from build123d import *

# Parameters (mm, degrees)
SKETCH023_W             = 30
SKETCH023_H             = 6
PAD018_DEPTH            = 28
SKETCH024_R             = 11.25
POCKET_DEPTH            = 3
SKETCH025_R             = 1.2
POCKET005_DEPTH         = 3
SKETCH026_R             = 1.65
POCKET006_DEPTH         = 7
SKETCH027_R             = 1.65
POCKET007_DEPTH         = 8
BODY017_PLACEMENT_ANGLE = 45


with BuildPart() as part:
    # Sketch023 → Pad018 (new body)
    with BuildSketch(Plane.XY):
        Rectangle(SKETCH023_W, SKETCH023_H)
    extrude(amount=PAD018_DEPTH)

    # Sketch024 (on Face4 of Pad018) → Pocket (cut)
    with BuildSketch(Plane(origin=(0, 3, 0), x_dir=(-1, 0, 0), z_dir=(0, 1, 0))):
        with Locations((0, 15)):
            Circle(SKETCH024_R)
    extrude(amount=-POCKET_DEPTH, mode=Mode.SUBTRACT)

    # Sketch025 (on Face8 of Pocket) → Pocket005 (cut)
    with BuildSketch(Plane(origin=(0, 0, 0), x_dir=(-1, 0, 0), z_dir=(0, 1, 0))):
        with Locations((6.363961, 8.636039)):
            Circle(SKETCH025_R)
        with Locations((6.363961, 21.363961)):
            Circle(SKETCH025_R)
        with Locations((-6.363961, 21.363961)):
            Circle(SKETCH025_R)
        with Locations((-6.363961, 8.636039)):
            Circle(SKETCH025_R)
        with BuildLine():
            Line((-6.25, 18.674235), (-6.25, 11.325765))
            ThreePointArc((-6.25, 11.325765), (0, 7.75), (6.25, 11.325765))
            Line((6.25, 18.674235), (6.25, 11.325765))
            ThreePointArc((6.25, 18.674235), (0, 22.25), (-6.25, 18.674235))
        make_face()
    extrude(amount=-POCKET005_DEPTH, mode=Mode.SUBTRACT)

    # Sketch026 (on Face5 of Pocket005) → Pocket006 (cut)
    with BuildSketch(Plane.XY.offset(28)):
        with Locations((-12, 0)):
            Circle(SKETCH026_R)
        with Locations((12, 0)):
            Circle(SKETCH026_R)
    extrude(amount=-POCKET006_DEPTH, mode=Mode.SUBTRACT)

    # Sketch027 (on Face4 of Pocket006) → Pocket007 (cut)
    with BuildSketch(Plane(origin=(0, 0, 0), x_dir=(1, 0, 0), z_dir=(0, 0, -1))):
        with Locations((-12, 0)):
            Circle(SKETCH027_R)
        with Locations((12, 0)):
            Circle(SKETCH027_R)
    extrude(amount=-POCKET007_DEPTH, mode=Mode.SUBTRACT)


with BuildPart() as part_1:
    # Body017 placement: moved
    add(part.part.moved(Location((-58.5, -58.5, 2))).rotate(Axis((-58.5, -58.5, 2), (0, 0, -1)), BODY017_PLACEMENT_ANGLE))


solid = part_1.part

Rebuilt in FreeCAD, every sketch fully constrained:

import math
import FreeCAD as App
import Part
import Sketcher

doc = App.newDocument("Part")
params = doc.addObject("Spreadsheet::Sheet", "Params")
for row, (alias, value) in enumerate([
    ("sketch1_width", "30 mm"),
    ("sketch1_height", "6 mm"),
    ("pad1_length", "28 mm"),
    ("sketch2_diameter", "22.5 mm"),
    ("pocket1_length", "3 mm"),
    ("sketch3_diameter", "2.4 mm"),
    ("sketch3_radius", "7.25 mm"),
    ("pocket2_length", "3 mm"),
    ("sketch4_diameter", "3.3 mm"),
    ("pocket3_length", "7 mm"),
    ("sketch5_diameter", "3.3 mm"),
    ("pocket4_length", "8 mm"),
], start=1):
    params.set(f"A{row}", alias)
    params.set(f"B{row}", "=" + value)
    params.setAlias(f"B{row}", alias)

body = doc.addObject("PartDesign::Body", "Body")

sketch1 = doc.addObject("Sketcher::SketchObject", "Sketch")
body.addObject(sketch1)
sketch1.AttachmentSupport = (doc.XY_Plane, [""])
sketch1.MapMode = "FlatFace"
sketch1.addGeometry(Part.LineSegment(App.Vector(-15, 3, 0), App.Vector(-15, -3, 0)), False)
sketch1.addGeometry(Part.LineSegment(App.Vector(-15, -3, 0), App.Vector(15, -3, 0)), False)
sketch1.addGeometry(Part.LineSegment(App.Vector(15, -3, 0), App.Vector(15, 3, 0)), False)
sketch1.addGeometry(Part.LineSegment(App.Vector(15, 3, 0), App.Vector(-15, 3, 0)), False)
sketch1.addConstraint(Sketcher.Constraint("Coincident", 0, 2, 1, 1))
sketch1.addConstraint(Sketcher.Constraint("Coincident", 1, 2, 2, 1))
sketch1.addConstraint(Sketcher.Constraint("Coincident", 2, 2, 3, 1))
sketch1.addConstraint(Sketcher.Constraint("Coincident", 3, 2, 0, 1))
sketch1.addConstraint(Sketcher.Constraint("Vertical", 0))
sketch1.addConstraint(Sketcher.Constraint("Horizontal", 1))
sketch1.addConstraint(Sketcher.Constraint("Vertical", 2))
sketch1.addConstraint(Sketcher.Constraint("Horizontal", 3))
sketch1.addConstraint(Sketcher.Constraint("Symmetric", 0, 2, 2, 2, -1, 1))
sketch1.addConstraint(Sketcher.Constraint("DistanceX", 1, 1, 1, 2, 30.0))
sketch1.addConstraint(Sketcher.Constraint("DistanceY", 0, 2, 0, 1, 6.0))
sketch1.setExpression("Constraints[9]", "Params.sketch1_width")
sketch1.setExpression("Constraints[10]", "Params.sketch1_height")
pad1 = doc.addObject("PartDesign::Pad", "Pad")
body.addObject(pad1)
pad1.Profile = sketch1
pad1.setExpression("Length", "Params.pad1_length")

sketch2 = doc.addObject("Sketcher::SketchObject", "Sketch001")
body.addObject(sketch2)
sketch2.AttachmentSupport = (doc.XZ_Plane, [""])
sketch2.MapMode = "FlatFace"
sketch2.AttachmentOffset = App.Placement(App.Vector(0, 0, -3), App.Rotation())
sketch2.addGeometry(Part.Circle(App.Vector(0, 15, 0), App.Vector(0, 0, 1), 11), False)
sketch2.addConstraint(Sketcher.Constraint("PointOnObject", 0, 3, -2))
sketch2.addConstraint(Sketcher.Constraint("Diameter", 0, 22.5))
sketch2.addConstraint(Sketcher.Constraint("DistanceY", -1, 1, 0, 3, 15.0))
sketch2.setExpression("Constraints[1]", "Params.sketch2_diameter")
pocket1 = doc.addObject("PartDesign::Pocket", "Pocket")
body.addObject(pocket1)
pocket1.Profile = sketch2
pocket1.setExpression("Length", "Params.pocket1_length")
pocket1.Reversed = True

sketch3 = doc.addObject("Sketcher::SketchObject", "Sketch002")
body.addObject(sketch3)
sketch3.AttachmentSupport = (doc.XZ_Plane, [""])
sketch3.MapMode = "FlatFace"
sketch3.addGeometry(Part.Circle(App.Vector(-6.4, 8.6, 0), App.Vector(0, 0, 1), 1.2), False)
sketch3.addGeometry(Part.Circle(App.Vector(-6.4, 21.4, 0), App.Vector(0, 0, 1), 1.2), False)
sketch3.addGeometry(Part.Circle(App.Vector(6.4, 21.4, 0), App.Vector(0, 0, 1), 1.2), False)
sketch3.addGeometry(Part.Circle(App.Vector(6.4, 8.6, 0), App.Vector(0, 0, 1), 1.2), False)
sketch3.addGeometry(Part.LineSegment(App.Vector(6.2, 18.7, 0), App.Vector(6.2, 11.3, 0)), False)
sketch3.addGeometry(Part.ArcOfCircle(Part.Circle(App.Vector(0, 15, 0), App.Vector(0, 0, 1), 7.3), math.radians(-150), math.radians(-30)), False)
sketch3.addGeometry(Part.LineSegment(App.Vector(-6.2, 11.3, 0), App.Vector(-6.2, 18.7, 0)), False)
sketch3.addGeometry(Part.ArcOfCircle(Part.Circle(App.Vector(0, 15, 0), App.Vector(0, 0, 1), 7.3), math.radians(30), math.radians(150)), False)
sketch3.addConstraint(Sketcher.Constraint("Coincident", 4, 2, 5, 2))
sketch3.addConstraint(Sketcher.Constraint("Coincident", 5, 1, 6, 1))
sketch3.addConstraint(Sketcher.Constraint("Coincident", 6, 2, 7, 2))
sketch3.addConstraint(Sketcher.Constraint("Coincident", 7, 1, 4, 1))
sketch3.addConstraint(Sketcher.Constraint("Vertical", 4))
sketch3.addConstraint(Sketcher.Constraint("Vertical", 6))
sketch3.addConstraint(Sketcher.Constraint("Coincident", 7, 3, 5, 3))
sketch3.addConstraint(Sketcher.Constraint("Equal", 0, 1))
sketch3.addConstraint(Sketcher.Constraint("Equal", 1, 2))
sketch3.addConstraint(Sketcher.Constraint("Equal", 2, 3))
sketch3.addConstraint(Sketcher.Constraint("Equal", 5, 7))
sketch3.addConstraint(Sketcher.Constraint("Symmetric", 1, 3, 2, 3, -2))
sketch3.addConstraint(Sketcher.Constraint("Symmetric", 0, 3, 3, 3, -2))
sketch3.addConstraint(Sketcher.Constraint("Symmetric", 4, 2, 5, 1, -2))
sketch3.addConstraint(Sketcher.Constraint("Vertical", 0, 3, 1, 3))
sketch3.addConstraint(Sketcher.Constraint("Diameter", 0, 2.4))
sketch3.addConstraint(Sketcher.Constraint("Radius", 5, 7.25))
sketch3.addConstraint(Sketcher.Constraint("DistanceY", -1, 1, 5, 3, 15.0))
sketch3.addConstraint(Sketcher.Constraint("DistanceX", 5, 1, 4, 2, 12.5))
sketch3.addConstraint(Sketcher.Constraint("DistanceX", 0, 3, -1, 1, 6.363961))
sketch3.addConstraint(Sketcher.Constraint("DistanceY", -1, 1, 0, 3, 8.636039))
sketch3.addConstraint(Sketcher.Constraint("DistanceY", -1, 1, 1, 3, 21.363961))
sketch3.setExpression("Constraints[15]", "Params.sketch3_diameter")
sketch3.setExpression("Constraints[16]", "Params.sketch3_radius")
pocket2 = doc.addObject("PartDesign::Pocket", "Pocket001")
body.addObject(pocket2)
pocket2.Profile = sketch3
pocket2.setExpression("Length", "Params.pocket2_length")
pocket2.Reversed = True

sketch4 = doc.addObject("Sketcher::SketchObject", "Sketch003")
body.addObject(sketch4)
sketch4.AttachmentSupport = (doc.XY_Plane, [""])
sketch4.MapMode = "FlatFace"
sketch4.AttachmentOffset = App.Placement(App.Vector(0, 0, 28), App.Rotation())
sketch4.addGeometry(Part.Circle(App.Vector(-12, 0, 0), App.Vector(0, 0, 1), 1.6), False)
sketch4.addGeometry(Part.Circle(App.Vector(12, 0, 0), App.Vector(0, 0, 1), 1.6), False)
sketch4.addConstraint(Sketcher.Constraint("Equal", 0, 1))
sketch4.addConstraint(Sketcher.Constraint("Symmetric", 0, 3, 1, 3, -1, 1))
sketch4.addConstraint(Sketcher.Constraint("PointOnObject", 0, 3, -1))
sketch4.addConstraint(Sketcher.Constraint("Diameter", 0, 3.3))
sketch4.addConstraint(Sketcher.Constraint("DistanceX", 0, 3, -1, 1, 12.0))
sketch4.setExpression("Constraints[3]", "Params.sketch4_diameter")
pocket3 = doc.addObject("PartDesign::Pocket", "Pocket002")
body.addObject(pocket3)
pocket3.Profile = sketch4
pocket3.setExpression("Length", "Params.pocket3_length")

sketch5 = doc.addObject("Sketcher::SketchObject", "Sketch004")
body.addObject(sketch5)
sketch5.AttachmentSupport = (doc.XY_Plane, [""])
sketch5.MapMode = "FlatFace"
sketch5.addGeometry(Part.Circle(App.Vector(-12, 0, 0), App.Vector(0, 0, 1), 1.6), False)
sketch5.addGeometry(Part.Circle(App.Vector(12, 0, 0), App.Vector(0, 0, 1), 1.6), False)
sketch5.addConstraint(Sketcher.Constraint("Equal", 0, 1))
sketch5.addConstraint(Sketcher.Constraint("Symmetric", 0, 3, 1, 3, -1, 1))
sketch5.addConstraint(Sketcher.Constraint("PointOnObject", 0, 3, -1))
sketch5.addConstraint(Sketcher.Constraint("Diameter", 0, 3.3))
sketch5.addConstraint(Sketcher.Constraint("DistanceX", 0, 3, -1, 1, 12.0))
sketch5.setExpression("Constraints[3]", "Params.sketch5_diameter")
pocket4 = doc.addObject("PartDesign::Pocket", "Pocket003")
body.addObject(pocket4)
pocket4.Profile = sketch5
pocket4.setExpression("Length", "Params.pocket4_length")
pocket4.Reversed = True
body2 = doc.addObject("PartDesign::Body", "Body001")
doc.recompute()

body.Placement = App.Placement(App.Vector(-58.5, -58.5, 2), App.Rotation(App.Vector(0, 0, -1), 45))
boolean = doc.addObject("PartDesign::Boolean", "Boolean")
body2.addObject(boolean)
boolean.Type = "Fuse"
boolean.addObjects([body])

doc.recompute()
